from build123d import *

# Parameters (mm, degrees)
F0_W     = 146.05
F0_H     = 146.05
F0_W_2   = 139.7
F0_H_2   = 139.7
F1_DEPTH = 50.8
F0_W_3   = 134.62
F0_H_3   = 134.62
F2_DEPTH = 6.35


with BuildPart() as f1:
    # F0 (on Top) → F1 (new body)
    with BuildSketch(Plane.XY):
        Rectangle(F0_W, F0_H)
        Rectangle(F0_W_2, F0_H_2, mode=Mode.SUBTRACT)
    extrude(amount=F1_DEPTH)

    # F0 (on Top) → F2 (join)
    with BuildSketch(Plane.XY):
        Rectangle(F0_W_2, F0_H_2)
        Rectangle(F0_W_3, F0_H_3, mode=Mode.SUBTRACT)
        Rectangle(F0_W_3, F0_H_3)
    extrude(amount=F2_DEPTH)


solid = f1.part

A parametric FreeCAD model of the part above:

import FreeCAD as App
import Part
import Sketcher

V = App.Vector
Q = App.Units.Quantity


def add_polygon(sketch, points):
    """Adds a closed chain of lines whose ends are joined by coincident constraints."""
    first, n = sketch.GeometryCount, len(points)
    for a, b in zip(points, points[1:] + points[:1]):
        sketch.addGeometry(Part.LineSegment(App.Vector(*a, 0), App.Vector(*b, 0)), False)
    for i in range(n):
        sketch.addConstraint(Sketcher.Constraint("Coincident", first + i, 2, first + (i + 1) % n, 1))

doc = App.newDocument("Part")
body = doc.addObject("PartDesign::Body", "Body")

sketch1 = doc.addObject("Sketcher::SketchObject", "Sketch")
body.addObject(sketch1)
sketch1.AttachmentSupport = (doc.XY_Plane, [""])
sketch1.MapMode = "FlatFace"
add_polygon(sketch1, [(-73, 73), (-73, -73), (73, -73), (73, 73)])
add_polygon(sketch1, [(70, -70), (-70, -70), (-70, 70), (70, 70)])
sketch1.addConstraint([
    Sketcher.Constraint("Vertical", 0),
    Sketcher.Constraint("Horizontal", 1),
    Sketcher.Constraint("Vertical", 2),
    Sketcher.Constraint("Horizontal", 3),
    Sketcher.Constraint("Horizontal", 4),
    Sketcher.Constraint("Vertical", 5),
    Sketcher.Constraint("Horizontal", 6),
    Sketcher.Constraint("Vertical", 7),
    Sketcher.Constraint("Symmetric", 0, 2, 2, 2, -1, 1),
    Sketcher.Constraint("Symmetric", 4, 2, 6, 2, -1, 1),
    Sketcher.Constraint("Equal", 3, 0),
    Sketcher.Constraint("Equal", 6, 5),
    Sketcher.Constraint("DistanceX", 4, 2, 4, 1, Q("5.5 in")),
    Sketcher.Constraint("DistanceX", 1, 1, 1, 2, Q("5.75 in")),
])
pad1 = doc.addObject("PartDesign::Pad", "Pad")
body.addObject(pad1)
pad1.Profile = sketch1
pad1.Length = Q("2 in")

sketch2 = doc.addObject("Sketcher::SketchObject", "Sketch001")
body.addObject(sketch2)
sketch2.AttachmentSupport = (doc.XY_Plane, [""])
sketch2.MapMode = "FlatFace"
add_polygon(sketch2, [(-70, 70), (-70, -70), (70, -70), (70, 70)])
sketch2.addConstraint([
    Sketcher.Constraint("Vertical", 0),
    Sketcher.Constraint("Horizontal", 1),
    Sketcher.Constraint("Vertical", 2),
    Sketcher.Constraint("Horizontal", 3),
    Sketcher.Constraint("Symmetric", 0, 2, 2, 2, -1, 1),
    Sketcher.Constraint("Equal", 3, 0),
    Sketcher.Constraint("DistanceX", 1, 1, 1, 2, Q("5.5 in")),
])
pad2 = doc.addObject("PartDesign::Pad", "Pad001")
body.addObject(pad2)
pad2.Profile = sketch2
pad2.Length = Q("0.25 in")

doc.recompute()
